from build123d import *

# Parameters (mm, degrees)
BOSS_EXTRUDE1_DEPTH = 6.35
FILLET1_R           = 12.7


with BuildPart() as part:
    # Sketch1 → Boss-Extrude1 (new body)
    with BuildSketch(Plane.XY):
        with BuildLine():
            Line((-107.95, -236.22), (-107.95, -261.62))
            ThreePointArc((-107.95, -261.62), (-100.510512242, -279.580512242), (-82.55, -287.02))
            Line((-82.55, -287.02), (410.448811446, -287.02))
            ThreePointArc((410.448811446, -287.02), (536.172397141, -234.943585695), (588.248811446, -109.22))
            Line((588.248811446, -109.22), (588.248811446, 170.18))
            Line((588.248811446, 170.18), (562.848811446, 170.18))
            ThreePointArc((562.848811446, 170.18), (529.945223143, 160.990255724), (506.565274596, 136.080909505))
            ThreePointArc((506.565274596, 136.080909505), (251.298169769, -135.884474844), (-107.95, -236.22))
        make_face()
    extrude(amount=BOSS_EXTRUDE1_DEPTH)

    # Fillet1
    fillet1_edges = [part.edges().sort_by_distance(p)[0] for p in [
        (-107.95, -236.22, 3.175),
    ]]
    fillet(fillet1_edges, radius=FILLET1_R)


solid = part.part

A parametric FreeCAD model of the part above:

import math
import FreeCAD as App
import Part
import Sketcher
from FreeCAD import Vector
Q = App.Units.Quantity


def edges_at(feature, points):
    """Names of the edges that pass closest to the given points."""
    edges = feature.Shape.Edges
    near = lambda p: min(range(len(edges)), key=lambda i: edges[i].distToShape(Part.Vertex(*p))[0])
    return sorted({f"Edge{near(p) + 1}" for p in points})

doc = App.newDocument("Part")
params = doc.addObject("Spreadsheet::Sheet", "Params")
for row, (alias, value) in enumerate([
    ("sketch1_radius", "1 in"),
    ("sketch1_radius2", "7 in"),
    ("sketch1_radius3", "2.5 in"),
    ("sketch1_width", "1 in"),
    ("sketch1_height", "11 in"),
    ("pad1_length", "0.25 in"),
    ("fillet_radius", "0.5 in"),
], start=1):
    params.set(f"A{row}", alias)
    params.set(f"B{row}", "=" + value)
    params.setAlias(f"B{row}", alias)

body = doc.addObject("PartDesign::Body", "Body")

# Sketch on XY plane
sketch1 = body.newObject("Sketcher::SketchObject", "Sketch")
sketch1.AttachmentSupport = (doc.getObject("XY_Plane"), [""])
sketch1.MapMode = "FlatFace"
sketch1.addGeometry([
    Part.LineSegment(Vector(-108, -236, 0), Vector(-108, -262, 0)),  # 0
    Part.ArcOfCircle(Part.Circle(Vector(-83, -262, 0), Vector(0, 0, 1), 25), math.radians(180), math.radians(270)),  # 1
    Part.LineSegment(Vector(-83, -287, 0), Vector(410, -287, 0)),  # 2
    Part.ArcOfCircle(Part.Circle(Vector(410, -109, 0), Vector(0, 0, 1), 178), math.radians(-90), math.radians(0)),  # 3
    Part.LineSegment(Vector(588, -109, 0), Vector(588, 170, 0)),  # 4
    Part.LineSegment(Vector(588, 170, 0), Vector(563, 170, 0)),  # 5
    Part.ArcOfCircle(Part.Circle(Vector(563, 107, 0), Vector(0, 0, 1), 64), math.radians(90), math.radians(152)),  # 6
    Part.ArcOfCircle(Part.Circle(Vector(-108, 457, 0), Vector(0, 0, 1), 693), math.radians(-90), math.radians(-28)),  # 7
], False)
sketch1.addConstraint([
    Sketcher.Constraint("Tangent", 0, 2, 1, 1),
    Sketcher.Constraint("Tangent", 1, 2, 2, 1),
    Sketcher.Constraint("Tangent", 2, 2, 3, 1),
    Sketcher.Constraint("Tangent", 3, 2, 4, 1),
    Sketcher.Constraint("Coincident", 4, 2, 5, 1),
    Sketcher.Constraint("Tangent", 5, 2, 6, 1),
    Sketcher.Constraint("Tangent", 6, 2, 7, 2),
    Sketcher.Constraint("Coincident", 7, 1, 0, 1),
    Sketcher.Constraint("Vertical", 0),
    Sketcher.Constraint("Horizontal", 2),
    Sketcher.Constraint("Vertical", 4),
    Sketcher.Constraint("Horizontal", 5),
    Sketcher.Constraint("Vertical", 7, 3, 0, 2),
    Sketcher.Constraint("Equal", 5, 0),
    Sketcher.Constraint("Radius", 1, Q("1 in")),
    Sketcher.Constraint("Radius", 3, Q("7 in")),
    Sketcher.Constraint("Radius", 6, Q("2.5 in")),
    Sketcher.Constraint("DistanceX", 5, 2, 5, 1, Q("1 in")),
    Sketcher.Constraint("DistanceY", 4, 1, 4, 2, Q("11 in")),
    Sketcher.Constraint("DistanceY", 1, 3, -1, 1, Q("10.3 in")),
    Sketcher.Constraint("DistanceX", 1, 3, -1, 1, Q("3.25 in")),
    Sketcher.Constraint("Radius", 7, 693.306109),
])
sketch1.setExpression("Constraints[14]", "Params.sketch1_radius")
sketch1.setExpression("Constraints[15]", "Params.sketch1_radius2")
sketch1.setExpression("Constraints[16]", "Params.sketch1_radius3")
sketch1.setExpression("Constraints[17]", "Params.sketch1_width")
sketch1.setExpression("Constraints[18]", "Params.sketch1_height")
pad1 = body.newObject("PartDesign::Pad", "Pad")
pad1.Profile = sketch1
pad1.setExpression("Length", "Params.pad1_length")
doc.recompute()

fillet = body.newObject("PartDesign::Fillet", "Fillet")
fillet.Base = (pad1, edges_at(pad1, [(-107.95, -236.22, 3.175)]))
fillet.setExpression("Radius", "Params.fillet_radius")

doc.recompute()
